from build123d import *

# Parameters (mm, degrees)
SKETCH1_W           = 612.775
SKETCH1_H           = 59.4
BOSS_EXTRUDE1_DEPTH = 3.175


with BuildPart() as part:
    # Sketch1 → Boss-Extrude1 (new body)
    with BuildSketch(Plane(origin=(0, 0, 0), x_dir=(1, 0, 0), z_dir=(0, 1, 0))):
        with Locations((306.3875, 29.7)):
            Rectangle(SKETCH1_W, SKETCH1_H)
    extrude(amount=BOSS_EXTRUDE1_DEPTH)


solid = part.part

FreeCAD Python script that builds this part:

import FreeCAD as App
import Part
import Sketcher

V = App.Vector
Q = App.Units.Quantity


def add_polygon(sketch, points):
    """Adds a closed chain of lines whose ends are joined by coincident constraints."""
    first, n = sketch.GeometryCount, len(points)
    for a, b in zip(points, points[1:] + points[:1]):
        sketch.addGeometry(Part.LineSegment(App.Vector(*a, 0), App.Vector(*b, 0)), False)
    for i in range(n):
        sketch.addConstraint(Sketcher.Constraint("Coincident", first + i, 2, first + (i + 1) % n, 1))

doc = App.newDocument("Part")
body = doc.addObject("PartDesign::Body", "Body")

# Sketch on XZ plane
sketch1 = body.newObject("Sketcher::SketchObject", "Sketch")
sketch1.AttachmentSupport = (doc.getObject("XZ_Plane"), [""])
sketch1.MapMode = "FlatFace"
add_polygon(sketch1, [(0, -59), (0, 0), (613, 0), (613, -59)])  # lines 0-3
sketch1.addConstraint(Sketcher.Constraint("Vertical", 0))
sketch1.addConstraint(Sketcher.Constraint("Horizontal", 1))
sketch1.addConstraint(Sketcher.Constraint("Vertical", 2))
sketch1.addConstraint(Sketcher.Constraint("Horizontal", 3))
sketch1.addConstraint(Sketcher.Constraint("Coincident", 0, 2, -1, 1))
sketch1.addConstraint(Sketcher.Constraint("DistanceX", 1, 1, 1, 2, Q("24.125 in")))
sketch1.addConstraint(Sketcher.Constraint("DistanceY", 0, 1, 0, 2, Q("59.4 mm")))
pad1 = body.newObject("PartDesign::Pad", "Pad")
pad1.Profile = sketch1
pad1.Length = Q("0.125 in")
pad1.Reversed = True

doc.recompute()
